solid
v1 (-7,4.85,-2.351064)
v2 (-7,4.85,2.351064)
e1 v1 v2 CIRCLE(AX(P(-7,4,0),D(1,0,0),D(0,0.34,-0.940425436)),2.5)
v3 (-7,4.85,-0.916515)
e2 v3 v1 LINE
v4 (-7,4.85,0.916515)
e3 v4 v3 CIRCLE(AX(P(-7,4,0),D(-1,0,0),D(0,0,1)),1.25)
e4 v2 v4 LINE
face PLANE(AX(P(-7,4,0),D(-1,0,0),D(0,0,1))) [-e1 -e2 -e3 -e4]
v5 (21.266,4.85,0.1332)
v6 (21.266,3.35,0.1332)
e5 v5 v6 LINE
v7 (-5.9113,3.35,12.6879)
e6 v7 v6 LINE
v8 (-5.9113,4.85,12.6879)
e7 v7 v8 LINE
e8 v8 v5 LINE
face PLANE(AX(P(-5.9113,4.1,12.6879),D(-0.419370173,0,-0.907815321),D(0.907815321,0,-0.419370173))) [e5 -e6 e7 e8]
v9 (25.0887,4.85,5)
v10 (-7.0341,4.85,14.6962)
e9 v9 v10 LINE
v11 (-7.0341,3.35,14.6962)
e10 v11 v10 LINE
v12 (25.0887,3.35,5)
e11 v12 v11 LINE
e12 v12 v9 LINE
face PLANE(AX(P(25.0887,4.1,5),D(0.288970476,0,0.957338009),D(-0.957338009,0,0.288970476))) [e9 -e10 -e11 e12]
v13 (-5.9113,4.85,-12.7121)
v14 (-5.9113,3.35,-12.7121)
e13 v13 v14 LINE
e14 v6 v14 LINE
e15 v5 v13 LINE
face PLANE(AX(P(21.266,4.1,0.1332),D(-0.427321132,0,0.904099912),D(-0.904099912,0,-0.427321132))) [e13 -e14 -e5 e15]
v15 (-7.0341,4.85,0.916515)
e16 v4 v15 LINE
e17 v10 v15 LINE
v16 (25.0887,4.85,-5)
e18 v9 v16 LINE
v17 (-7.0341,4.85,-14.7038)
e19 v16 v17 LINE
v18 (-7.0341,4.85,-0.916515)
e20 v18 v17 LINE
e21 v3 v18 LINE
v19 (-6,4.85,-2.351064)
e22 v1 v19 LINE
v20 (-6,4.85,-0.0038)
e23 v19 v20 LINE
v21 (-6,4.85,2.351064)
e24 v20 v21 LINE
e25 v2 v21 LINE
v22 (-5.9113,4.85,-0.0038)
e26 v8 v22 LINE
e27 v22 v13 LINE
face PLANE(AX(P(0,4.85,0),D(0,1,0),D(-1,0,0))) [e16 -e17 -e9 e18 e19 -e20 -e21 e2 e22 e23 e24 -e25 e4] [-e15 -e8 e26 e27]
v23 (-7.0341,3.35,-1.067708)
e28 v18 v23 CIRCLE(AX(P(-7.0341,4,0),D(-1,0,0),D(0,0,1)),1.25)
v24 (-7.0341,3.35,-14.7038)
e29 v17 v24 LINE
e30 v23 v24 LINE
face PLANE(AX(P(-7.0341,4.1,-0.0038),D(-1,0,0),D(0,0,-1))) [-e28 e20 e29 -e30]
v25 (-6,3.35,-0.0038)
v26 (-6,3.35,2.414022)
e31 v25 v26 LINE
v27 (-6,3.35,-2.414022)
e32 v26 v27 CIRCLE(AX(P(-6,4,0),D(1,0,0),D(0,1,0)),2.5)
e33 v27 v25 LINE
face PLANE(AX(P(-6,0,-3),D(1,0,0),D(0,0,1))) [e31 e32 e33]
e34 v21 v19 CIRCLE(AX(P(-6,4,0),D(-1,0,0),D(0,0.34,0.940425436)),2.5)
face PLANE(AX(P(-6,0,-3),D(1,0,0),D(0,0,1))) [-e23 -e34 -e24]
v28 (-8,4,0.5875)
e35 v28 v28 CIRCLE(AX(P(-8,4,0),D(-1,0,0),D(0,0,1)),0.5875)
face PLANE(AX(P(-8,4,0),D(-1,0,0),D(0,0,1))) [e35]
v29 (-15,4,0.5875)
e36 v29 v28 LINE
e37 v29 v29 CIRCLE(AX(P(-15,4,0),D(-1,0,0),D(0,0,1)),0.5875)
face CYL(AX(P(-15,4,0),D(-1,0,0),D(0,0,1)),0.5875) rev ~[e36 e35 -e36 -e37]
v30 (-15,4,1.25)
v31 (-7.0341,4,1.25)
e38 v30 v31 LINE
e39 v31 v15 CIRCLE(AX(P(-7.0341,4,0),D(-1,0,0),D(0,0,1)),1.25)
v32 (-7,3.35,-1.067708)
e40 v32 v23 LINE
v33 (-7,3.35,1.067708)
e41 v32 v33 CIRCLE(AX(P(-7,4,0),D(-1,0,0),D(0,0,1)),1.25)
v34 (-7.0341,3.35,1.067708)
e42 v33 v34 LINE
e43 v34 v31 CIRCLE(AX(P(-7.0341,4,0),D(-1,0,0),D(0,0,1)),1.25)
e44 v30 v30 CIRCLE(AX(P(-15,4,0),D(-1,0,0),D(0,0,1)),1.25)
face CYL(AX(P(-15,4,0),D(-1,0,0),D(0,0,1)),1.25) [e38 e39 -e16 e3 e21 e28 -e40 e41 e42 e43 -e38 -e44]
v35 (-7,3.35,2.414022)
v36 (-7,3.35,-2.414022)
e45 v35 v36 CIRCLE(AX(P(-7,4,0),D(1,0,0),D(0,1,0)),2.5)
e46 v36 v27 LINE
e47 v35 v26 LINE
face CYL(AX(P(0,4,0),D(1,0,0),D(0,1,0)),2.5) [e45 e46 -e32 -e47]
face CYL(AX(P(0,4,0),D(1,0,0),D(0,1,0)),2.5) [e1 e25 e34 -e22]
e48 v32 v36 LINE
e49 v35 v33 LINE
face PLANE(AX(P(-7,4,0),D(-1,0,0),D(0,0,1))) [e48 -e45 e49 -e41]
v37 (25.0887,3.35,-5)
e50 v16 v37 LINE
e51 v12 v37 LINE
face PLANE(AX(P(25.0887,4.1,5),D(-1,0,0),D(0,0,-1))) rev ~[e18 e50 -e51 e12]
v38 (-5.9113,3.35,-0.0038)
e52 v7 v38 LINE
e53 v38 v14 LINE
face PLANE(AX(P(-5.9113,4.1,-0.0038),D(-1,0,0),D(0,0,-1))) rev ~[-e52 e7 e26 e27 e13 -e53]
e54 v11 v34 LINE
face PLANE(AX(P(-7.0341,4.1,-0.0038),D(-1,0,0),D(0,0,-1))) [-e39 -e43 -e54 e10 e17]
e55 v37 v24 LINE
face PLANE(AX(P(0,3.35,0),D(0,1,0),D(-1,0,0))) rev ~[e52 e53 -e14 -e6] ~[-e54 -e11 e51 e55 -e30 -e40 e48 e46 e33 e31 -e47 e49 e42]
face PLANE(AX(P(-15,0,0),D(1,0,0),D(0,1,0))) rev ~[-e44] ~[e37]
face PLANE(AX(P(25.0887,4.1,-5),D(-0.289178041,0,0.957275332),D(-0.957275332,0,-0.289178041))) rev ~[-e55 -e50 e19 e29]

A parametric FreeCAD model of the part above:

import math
import FreeCAD as App
import Part
import Sketcher
Q = App.Units.Quantity


def add_polygon(sketch, points):
    """Adds a closed chain of lines whose ends are joined by coincident constraints."""
    first, n = sketch.GeometryCount, len(points)
    for a, b in zip(points, points[1:] + points[:1]):
        sketch.addGeometry(Part.LineSegment(App.Vector(*a, 0), App.Vector(*b, 0)), False)
    for i in range(n):
        sketch.addConstraint(Sketcher.Constraint("Coincident", first + i, 2, first + (i + 1) % n, 1))

doc = App.newDocument("Part")
body = doc.addObject("PartDesign::Body", "Body")

# Sketch on XZ plane
sketch1 = body.newObject("Sketcher::SketchObject", "Sketch")
sketch1.AttachmentSupport = (doc.getObject("XZ_Plane"), [""])
sketch1.MapMode = "FlatFace"
sketch1.addGeometry([
    Part.LineSegment(App.Vector(0, 5, 0), App.Vector(0, -5, 0)),
    Part.ArcOfCircle(Part.Circle(App.Vector(0, 0, 0), App.Vector(0, 0, 1), 5), math.radians(90), math.radians(270)),
], False)
sketch1.addConstraint([
    Sketcher.Constraint("Coincident", 0, 1, 1, 1),
    Sketcher.Constraint("Coincident", 1, 2, 0, 2),
    Sketcher.Constraint("Vertical", 0),
    Sketcher.Constraint("Coincident", 1, 3, -1, 1),
    Sketcher.Constraint("PointOnObject", 0, 1, -2),
    Sketcher.Constraint("Radius", 1, Q("5 mm")),
])
pad1 = body.newObject("PartDesign::Pad", "Pad")
pad1.Profile = sketch1
pad1.Length = 10
pad1.Reversed = True

# Sketch on YZ plane
sketch2 = body.newObject("Sketcher::SketchObject", "Sketch001")
sketch2.AttachmentSupport = (doc.getObject("YZ_Plane"), [""])
sketch2.MapMode = "FlatFace"
sketch2.addGeometry([
    Part.ArcOfCircle(Part.Circle(App.Vector(1, 4, 0), App.Vector(0, 0, 1), 2.2), math.radians(27), math.radians(243)),  # 0
    Part.LineSegment(App.Vector(0, 2, 0), App.Vector(2.5, 4.5, 0)),  # 1
    Part.LineSegment(App.Vector(2.5, 4.5, 0), App.Vector(8, 4.5, 0)),  # 2
    Part.LineSegment(App.Vector(8, 4.5, 0), App.Vector(8, -4.5, 0)),  # 3
    Part.LineSegment(App.Vector(8, -4.5, 0), App.Vector(2.5, -4.5, 0)),  # 4
    Part.LineSegment(App.Vector(2.5, -4.5, 0), App.Vector(0, -2, 0)),  # 5
    Part.ArcOfCircle(Part.Circle(App.Vector(1.8, -4.2, 0), App.Vector(0, 0, 1), 2.9), math.radians(128), math.radians(260)),  # 6
    Part.ArcOfCircle(Part.Circle(App.Vector(5.5, -7.5, 0), App.Vector(0, 0, 1), 4.3), math.radians(174), math.radians(381)),  # 7
    Part.LineSegment(App.Vector(9.5, -6, 0), App.Vector(11, -6, 0)),  # 8
    Part.LineSegment(App.Vector(11, -6, 0), App.Vector(11, 5, 0)),  # 9
    Part.LineSegment(App.Vector(11, 5, 0), App.Vector(8.6, 5, 0)),  # 10
    Part.ArcOfCircle(Part.Circle(App.Vector(7, 6.3, 0), App.Vector(0, 0, 1), 2.1), math.radians(-39), math.radians(161)),  # 11
    Part.LineSegment(App.Vector(5, 7, 0), App.Vector(3, 5, 0)),  # 12
], False)
sketch2.addConstraint([
    Sketcher.Constraint("Coincident", 0, 2, 1, 1),
    Sketcher.Constraint("Coincident", 1, 2, 2, 1),
    Sketcher.Constraint("Coincident", 2, 2, 3, 1),
    Sketcher.Constraint("Coincident", 3, 2, 4, 1),
    Sketcher.Constraint("Coincident", 4, 2, 5, 1),
    Sketcher.Constraint("Coincident", 5, 2, 6, 1),
    Sketcher.Constraint("Coincident", 6, 2, 7, 1),
    Sketcher.Constraint("Coincident", 7, 2, 8, 1),
    Sketcher.Constraint("Coincident", 8, 2, 9, 1),
    Sketcher.Constraint("Coincident", 9, 2, 10, 1),
    Sketcher.Constraint("Coincident", 10, 2, 11, 1),
    Sketcher.Constraint("Coincident", 11, 2, 12, 1),
    Sketcher.Constraint("Coincident", 12, 2, 0, 1),
    Sketcher.Constraint("Horizontal", 2),
    Sketcher.Constraint("Vertical", 3),
    Sketcher.Constraint("Horizontal", 4),
    Sketcher.Constraint("Horizontal", 8),
    Sketcher.Constraint("Vertical", 9),
    Sketcher.Constraint("Horizontal", 10),
    Sketcher.Constraint("Symmetric", 0, 2, 5, 2, -1, 1),
    Sketcher.Constraint("Symmetric", 1, 2, 4, 2, -1),
    Sketcher.Constraint("PointOnObject", 0, 2, -2),
    Sketcher.Constraint("Perpendicular", 1, 5),
    Sketcher.Constraint("Perpendicular", 5, 12),
    Sketcher.Constraint("Horizontal", 10, 2, 12, 2),
    Sketcher.Constraint("DistanceY", 9, 1, 9, 2, Q("11 mm")),
    Sketcher.Constraint("Radius", 7, Q("4.28 mm")),
    Sketcher.Constraint("DistanceX", -1, 1, 0, 3, Q("1 mm")),
    Sketcher.Constraint("DistanceY", -1, 1, 0, 3, Q("4 mm")),
    Sketcher.Constraint("DistanceX", -1, 1, 11, 3, Q("7 mm")),
    Sketcher.Constraint("DistanceY", -1, 1, 0, 2, Q("2 mm")),
    Sketcher.Constraint("DistanceY", 7, 2, -1, 1, Q("6 mm")),
    Sketcher.Constraint("DistanceX", -1, 1, 8, 2, Q("11 mm")),
    Sketcher.Constraint("DistanceX", -1, 1, 11, 2, Q("5 mm")),
    Sketcher.Constraint("Radius", 6, Q("2.8504 mm")),
    Sketcher.Constraint("Radius", 11, Q("2.1092 mm")),
    Sketcher.Constraint("DistanceX", -1, 1, 6, 3, Q("1.75 mm")),
    Sketcher.Constraint("Distance", 1, Q("3.523 mm")),
    Sketcher.Constraint("DistanceX", 2, 1, 2, 2, Q("5.5414 mm")),
    Sketcher.Constraint("DistanceX", 8, 1, 8, 2, Q("1.4622 mm")),
    Sketcher.Constraint("DistanceX", -1, 1, 7, 3, Q("5.531 mm")),
])
pocket1 = body.newObject("PartDesign::Pocket", "Pocket")
pocket1.Profile = sketch2
pocket1.Type = "ThroughAll"

# Sketch on XZ plane
sketch3 = body.newObject("Sketcher::SketchObject", "Sketch002")
sketch3.AttachmentSupport = (doc.getObject("XZ_Plane"), [""])
sketch3.MapMode = "FlatFace"
sketch3.addGeometry([
    Part.ArcOfCircle(Part.Circle(App.Vector(0.5, 0, 0), App.Vector(0, 0, 1), 4.7), math.radians(-109), math.radians(109)),
    Part.ArcOfCircle(Part.Circle(App.Vector(1.1, 0, 0), App.Vector(0, 0, 1), 5), math.radians(116), math.radians(244)),
], False)
sketch3.addConstraint([
    Sketcher.Constraint("Coincident", 0, 1, 1, 2),
    Sketcher.Constraint("Coincident", 1, 1, 0, 2),
    Sketcher.Constraint("Symmetric", 0, 1, 1, 1, -1),
    Sketcher.Constraint("Radius", 1, Q("5 mm")),
    Sketcher.Constraint("DistanceX", -1, 1, 1, 3, Q("1.125 mm")),
    Sketcher.Constraint("Radius", 0, Q("4.7427 mm")),
    Sketcher.Constraint("DistanceY", 0, 1, -1, 1, Q("4.491 mm")),
])
pocket2 = body.newObject("PartDesign::Pocket", "Pocket001")
pocket2.Profile = sketch3
pocket2.Type = "ThroughAll"

# Sketch on YZ plane
sketch4 = body.newObject("Sketcher::SketchObject", "Sketch003")
sketch4.AttachmentSupport = (doc.getObject("YZ_Plane"), [""])
sketch4.MapMode = "FlatFace"
sketch4.addGeometry(Part.ArcOfCircle(Part.Circle(App.Vector(3.2, -0.4, 0), App.Vector(0, 0, 1), 5.3), math.radians(108), math.radians(252)), False)  # 0
sketch4.addGeometry(Part.LineSegment(App.Vector(1.6, -5.4, 0), App.Vector(1.6, -8.2, 0)), False)  # 1
sketch4.addGeometry(Part.ArcOfCircle(Part.Circle(App.Vector(2.6, -8.2, 0), App.Vector(0, 0, 1), 1), math.radians(-178), math.radians(-58)), False)  # 2
sketch4.addGeometry(Part.LineSegment(App.Vector(3.2, -9.1, 0), App.Vector(3.2, -12.9, 0)), False)  # 3
sketch4.addGeometry(Part.ArcOfCircle(Part.Circle(App.Vector(5.6, -11.8, 0), App.Vector(0, 0, 1), 2.6), math.radians(-156), math.radians(72)), False)  # 4
sketch4.addGeometry(Part.ArcOfCircle(Part.Circle(App.Vector(6.4, -1.1, 0), App.Vector(0, 0, 1), 8.2), math.radians(-90), math.radians(28)), False)  # 5
sketch4.addGeometry(Part.LineSegment(App.Vector(13.6, 2.7, 0), App.Vector(12.4, 2.7, 0)), False)  # 6
sketch4.addGeometry(Part.ArcOfCircle(Part.Circle(App.Vector(8.3, 3.9, 0), App.Vector(0, 0, 1), 4.3), math.radians(-17), math.radians(87)), False)  # 7
sketch4.addGeometry(Part.LineSegment(App.Vector(8.5, 8.2, 0), App.Vector(5.5, 5.1, 0)), False)  # 8
sketch4.addGeometry(Part.ArcOfCircle(Part.Circle(App.Vector(3.9, 6.9, 0), App.Vector(0, 0, 1), 2.4), math.radians(-48), math.radians(162)), False)  # 9
sketch4.addGeometry(Part.LineSegment(App.Vector(1.6, 7.6, 0), App.Vector(1.6, 4.7, 0)), False)  # 10
add_polygon(sketch4, [(1.6, -1.2), (1.6, 1.2), (3.1, 2.7), (6.4, 2.7), (6.4, -2.7), (3.1, -2.7)])  # lines 11-16
sketch4.addConstraint([
    Sketcher.Constraint("Coincident", 0, 2, 1, 1),
    Sketcher.Constraint("Coincident", 1, 2, 2, 1),
    Sketcher.Constraint("Coincident", 2, 2, 3, 1),
    Sketcher.Constraint("Coincident", 3, 2, 4, 1),
    Sketcher.Constraint("Coincident", 4, 2, 5, 1),
    Sketcher.Constraint("Coincident", 5, 2, 6, 1),
    Sketcher.Constraint("Coincident", 6, 2, 7, 1),
    Sketcher.Constraint("Coincident", 7, 2, 8, 1),
    Sketcher.Constraint("Coincident", 8, 2, 9, 1),
    Sketcher.Constraint("Coincident", 9, 2, 10, 1),
    Sketcher.Constraint("Coincident", 10, 2, 0, 1),
    Sketcher.Constraint("Vertical", 1),
    Sketcher.Constraint("Horizontal", 6),
    Sketcher.Constraint("Vertical", 10),
    Sketcher.Constraint("Vertical", 11),
    Sketcher.Constraint("Horizontal", 13),
    Sketcher.Constraint("Vertical", 14),
    Sketcher.Constraint("Horizontal", 15),
    Sketcher.Constraint("Symmetric", 12, 2, 15, 2, -1),
    Sketcher.Constraint("Parallel", 8, 12),
    Sketcher.Constraint("Horizontal", 6, 2, 12, 2),
    Sketcher.Constraint("Vertical", 0, 3, 3, 2),
    Sketcher.Constraint("Vertical", 1, 2, 9, 2),
    Sketcher.Constraint("Vertical", 10, 2, 11, 2),
    Sketcher.Constraint("Vertical", 4, 2, 13, 2),
    Sketcher.Constraint("DistanceY", 11, 1, 11, 2, Q("2.4 mm")),
    Sketcher.Constraint("DistanceX", 13, 1, 13, 2, Q("3.32 mm")),
    Sketcher.Constraint("DistanceX", -1, 1, 0, 2, Q("1.6 mm")),
    Sketcher.Constraint("Radius", 2, Q("1.039 mm")),
    Sketcher.Constraint("DistanceX", 6, 2, 6, 1, Q("1.23 mm")),
    Sketcher.Constraint("DistanceY", 1, 2, 1, 1, Q("2.84 mm")),
    Sketcher.Constraint("DistanceY", -1, 1, 9, 2, Q("7.6 mm")),
    Sketcher.Constraint("Angle", 3, Q("-89.2606 deg")),
    Sketcher.Constraint("Radius", 0, Q("5.2823 mm")),
    Sketcher.Constraint("Radius", 4, Q("2.5868 mm")),
    Sketcher.Constraint("Radius", 5, Q("8.2156 mm")),
    Sketcher.Constraint("Radius", 7, Q("4.2622 mm")),
    Sketcher.Constraint("Radius", 9, Q("2.3946 mm")),
    Sketcher.Constraint("DistanceY", 12, 2, 8, 2, Q("2.3995 mm")),
    Sketcher.Constraint("DistanceY", 10, 2, 10, 1, Q("2.942 mm")),
    Sketcher.Constraint("DistanceY", 2, 3, -1, 1, Q("8.18 mm")),
    Sketcher.Constraint("DistanceX", -1, 1, 5, 3, Q("6.37 mm")),
    Sketcher.Constraint("DistanceX", 0, 3, 9, 3, Q("0.64 mm")),
    Sketcher.Constraint("DistanceY", 0, 2, 0, 3, Q("5.02 mm")),
    Sketcher.Constraint("Distance", 16, Q("2.093 mm")),
    Sketcher.Constraint("DistanceY", 14, 2, 14, 1, Q("5.3822 mm")),
    Sketcher.Constraint("DistanceY", 4, 3, -1, 1, Q("11.817 mm")),
    Sketcher.Constraint("DistanceY", 5, 3, 0, 3, Q("0.786 mm")),
    Sketcher.Constraint("DistanceX", 2, 3, 7, 3, Q("5.689 mm")),
    Sketcher.Constraint("DistanceX", 4, 3, 7, 3, Q("2.715 mm")),
])
pocket3 = body.newObject("PartDesign::Pocket", "Pocket002")
pocket3.Profile = sketch4
pocket3.Type = "ThroughAll"

# Sketch on YZ plane
sketch5 = body.newObject("Sketcher::SketchObject", "Sketch004")
sketch5.AttachmentSupport = (doc.getObject("YZ_Plane"), [""])
sketch5.MapMode = "FlatFace"
sketch5.addGeometry(Part.Circle(App.Vector(4, 0, 0), App.Vector(0, 0, 1), 2.5), False)
sketch5.addConstraint([
    Sketcher.Constraint("PointOnObject", 0, 3, -1),
    Sketcher.Constraint("Diameter", 0, Q("5 mm")),
    Sketcher.Constraint("DistanceX", -1, 1, 0, 3, Q("4 mm")),
])
pad2 = body.newObject("PartDesign::Pad", "Pad001")
pad2.Profile = sketch5
pad2.Length = 15
pad2.Reversed = True

# Sketch on XZ plane
sketch6 = body.newObject("Sketcher::SketchObject", "Sketch005")
sketch6.AttachmentSupport = (doc.getObject("XZ_Plane"), [""])
sketch6.MapMode = "FlatFace"
sketch6.addGeometry([
    Part.ArcOfCircle(Part.Circle(App.Vector(-1.3, 0, 0), App.Vector(0, 0, 1), 3.2), math.radians(-123), math.radians(123)),
    Part.ArcOfCircle(Part.Circle(App.Vector(1.1, 0, 0), App.Vector(0, 0, 1), 5), math.radians(-165.59), math.radians(-147.44)),
    Part.ArcOfCircle(Part.Circle(App.Vector(1.1, 0, 0), App.Vector(0, 0, 1), 5), math.radians(167), math.radians(194)),
    Part.ArcOfCircle(Part.Circle(App.Vector(1.1, 0, 0), App.Vector(0, 0, 1), 5), math.radians(147.43), math.radians(166.64)),
], False)
sketch6.addConstraint([
    Sketcher.Constraint("Coincident", 0, 1, 1, 2),
    Sketcher.Constraint("Tangent", 1, 1, 2, 2),
    Sketcher.Constraint("Tangent", 2, 1, 3, 2),
    Sketcher.Constraint("Coincident", 3, 1, 0, 2),
    Sketcher.Constraint("Symmetric", 0, 1, 3, 1, -1),
    Sketcher.Constraint("Radius", 1, Q("4.999 mm")),
    Sketcher.Constraint("Radius", 0, Q("3.2082 mm")),
    Sketcher.Constraint("Radius", 2, Q("5.0015 mm")),
    Sketcher.Constraint("Radius", 3, Q("4.9977 mm")),
    Sketcher.Constraint("DistanceY", 1, 1, 2, 1, Q("2.4 mm")),
    Sketcher.Constraint("DistanceX", -1, 1, 1, 3, Q("1.124 mm")),
    Sketcher.Constraint("DistanceX", 0, 1, -1, 1, Q("3.089 mm")),
    Sketcher.Constraint("DistanceX", 1, 1, 0, 3, Q("2.375 mm")),
])
pocket4 = body.newObject("PartDesign::Pocket", "Pocket003")
pocket4.Profile = sketch6
pocket4.Type = "ThroughAll"

# Sketch on YZ plane
sketch7 = body.newObject("Sketcher::SketchObject", "Sketch006")
sketch7.AttachmentSupport = (doc.getObject("YZ_Plane"), [""])
sketch7.MapMode = "FlatFace"
sketch7.AttachmentOffset = App.Placement(App.Vector(0, 0, -15), App.Rotation())
sketch7.addGeometry(Part.Circle(App.Vector(4, 0, 0), App.Vector(0, 0, 1), 0.6), False)
sketch7.addConstraint([
    Sketcher.Constraint("PointOnObject", 0, 3, -1),
    Sketcher.Constraint("Diameter", 0, Q("1.175 mm")),
    Sketcher.Constraint("DistanceX", -1, 1, 0, 3, Q("4 mm")),
])
pocket5 = body.newObject("PartDesign::Pocket", "Pocket004")
pocket5.Profile = sketch7
pocket5.Length = 7
pocket5.Reversed = True

# Sketch on XZ plane
sketch8 = body.newObject("Sketcher::SketchObject", "Sketch007")
sketch8.AttachmentSupport = (doc.getObject("XZ_Plane"), [""])
sketch8.MapMode = "FlatFace"
add_polygon(sketch8, [(-6, -3), (-6, 3), (-2, 3), (-2, -3)])  # lines 0-3
sketch8.addConstraint([
    Sketcher.Constraint("Vertical", 0),
    Sketcher.Constraint("Horizontal", 1),
    Sketcher.Constraint("Vertical", 2),
    Sketcher.Constraint("Horizontal", 3),
    Sketcher.Constraint("DistanceX", 1, 1, 1, 2, Q("4 mm")),
    Sketcher.Constraint("DistanceY", 0, 1, 0, 2, Q("6 mm")),
    Sketcher.Constraint("DistanceX", 0, 2, -1, 1, Q("6 mm")),
    Sketcher.Constraint("DistanceY", -1, 1, 0, 2, Q("3 mm")),
])
pocket6 = body.newObject("PartDesign::Pocket", "Pocket005")
pocket6.Profile = sketch8
pocket6.Type = "ThroughAll"

# Sketch on YZ plane
sketch9 = body.newObject("Sketcher::SketchObject", "Sketch008")
sketch9.AttachmentSupport = (doc.getObject("YZ_Plane"), [""])
sketch9.MapMode = "FlatFace"
sketch9.AttachmentOffset = App.Placement(App.Vector(0, 0, -15), App.Rotation())
sketch9.addGeometry([
    Part.Circle(App.Vector(4, 0, 0), App.Vector(0, 0, 1), 4),
    Part.Circle(App.Vector(4, 0, 0), App.Vector(0, 0, 1), 1.2),
], False)
sketch9.addConstraint([
    Sketcher.Constraint("Coincident", 1, 3, 0, 3),
    Sketcher.Constraint("PointOnObject", 0, 3, -1),
    Sketcher.Constraint("Diameter", 1, Q("2.5 mm")),
    Sketcher.Constraint("DistanceX", -1, 1, 0, 3, Q("4 mm")),
    Sketcher.Constraint("Diameter", 0, Q("7.9056 mm")),
])
pocket7 = body.newObject("PartDesign::Pocket", "Pocket006")
pocket7.Profile = sketch9
pocket7.Length = 8
pocket7.Reversed = True

# Sketch on XZ plane
sketch10 = body.newObject("Sketcher::SketchObject", "Sketch009")
sketch10.AttachmentSupport = (doc.getObject("XZ_Plane"), [""])
sketch10.MapMode = "FlatFace"
sketch10.AttachmentOffset = App.Placement(App.Vector(0, 0, -4.1), App.Rotation())
add_polygon(sketch10, [(-7, -15), (-7, 0), (-7, 15), (25, 5), (25, -5)])  # lines 0-4
add_polygon(sketch10, [(21, 0), (-6, 13), (-6, 0), (-6, -13)])  # lines 5-8
sketch10.addConstraint([
    Sketcher.Constraint("Vertical", 0),
    Sketcher.Constraint("Vertical", 1),
    Sketcher.Constraint("Vertical", 3),
    Sketcher.Constraint("Vertical", 6),
    Sketcher.Constraint("Vertical", 7),
    Sketcher.Constraint("Horizontal", 0, 2, 6, 2),
    Sketcher.Constraint("Equal", 0, 1),
    Sketcher.Constraint("DistanceY", 3, 2, 3, 1, Q("10 mm")),
    Sketcher.Constraint("DistanceY", 0, 1, 0, 2, Q("14.7 mm")),
    Sketcher.Constraint("DistanceX", 5, 2, 2, 2, Q("31 mm")),
    Sketcher.Constraint("DistanceY", 7, 2, 5, 2, Q("25.4 mm")),
    Sketcher.Constraint("DistanceY", -1, 1, 2, 2, Q("5 mm")),
    Sketcher.Constraint("DistanceX", 0, 2, 8, 2, Q("28.3 mm")),
    Sketcher.Constraint("Distance", 8, Q("30.06 mm")),
    Sketcher.Constraint("Distance", 5, Q("29.937 mm")),
    Sketcher.Constraint("DistanceY", 6, 2, 6, 1, Q("12.6917 mm")),
    Sketcher.Constraint("DistanceX", 0, 2, -1, 1, Q("7.034 mm")),
    Sketcher.Constraint("DistanceY", -1, 1, 5, 2, Q("12.688 mm")),
])
pad3 = body.newObject("PartDesign::Pad", "Pad002")
pad3.Profile = sketch10
pad3.Length = 1.5
pad3.Midplane = True

doc.recompute()
